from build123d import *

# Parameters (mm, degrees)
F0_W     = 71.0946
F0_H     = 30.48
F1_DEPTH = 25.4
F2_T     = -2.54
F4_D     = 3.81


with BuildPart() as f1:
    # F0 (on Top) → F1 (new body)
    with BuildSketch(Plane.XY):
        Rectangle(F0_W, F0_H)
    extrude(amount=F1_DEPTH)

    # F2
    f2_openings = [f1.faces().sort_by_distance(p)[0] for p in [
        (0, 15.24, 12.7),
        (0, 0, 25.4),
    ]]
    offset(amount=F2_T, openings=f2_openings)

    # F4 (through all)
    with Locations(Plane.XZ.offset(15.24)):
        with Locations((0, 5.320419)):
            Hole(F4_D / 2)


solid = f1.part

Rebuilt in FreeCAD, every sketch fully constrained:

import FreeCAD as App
import Part
import Sketcher
from FreeCAD import Vector
Q = App.Units.Quantity


def faces_at(feature, points):
    """Names of the faces that lie closest to the given points."""
    faces = feature.Shape.Faces
    near = lambda p: min(range(len(faces)), key=lambda i: faces[i].distToShape(Part.Vertex(*p))[0])
    return sorted({f"Face{near(p) + 1}" for p in points})


def add_polygon(sketch, points):
    """Adds a closed chain of lines whose ends are joined by coincident constraints."""
    first, n = sketch.GeometryCount, len(points)
    for a, b in zip(points, points[1:] + points[:1]):
        sketch.addGeometry(Part.LineSegment(App.Vector(*a, 0), App.Vector(*b, 0)), False)
    for i in range(n):
        sketch.addConstraint(Sketcher.Constraint("Coincident", first + i, 2, first + (i + 1) % n, 1))

doc = App.newDocument("Part")
body = doc.addObject("PartDesign::Body", "Body")

# Sketch on XY plane
sketch1 = body.newObject("Sketcher::SketchObject", "Sketch")
sketch1.AttachmentSupport = (doc.getObject("XY_Plane"), [""])
sketch1.MapMode = "FlatFace"
add_polygon(sketch1, [(-36, 15), (-36, -15), (36, -15), (36, 15)])  # lines 0-3
sketch1.addConstraint(Sketcher.Constraint("Vertical", 0))
sketch1.addConstraint(Sketcher.Constraint("Horizontal", 1))
sketch1.addConstraint(Sketcher.Constraint("Vertical", 2))
sketch1.addConstraint(Sketcher.Constraint("Horizontal", 3))
sketch1.addConstraint(Sketcher.Constraint("Symmetric", 0, 2, 2, 2, -1, 1))
sketch1.addConstraint(Sketcher.Constraint("DistanceY", 0, 2, 0, 1, Q("1.2 in")))
sketch1.addConstraint(Sketcher.Constraint("DistanceX", 1, 1, 1, 2, Q("2.799 in")))
pad1 = body.newObject("PartDesign::Pad", "Pad")
pad1.Profile = sketch1
pad1.Length = Q("1 in")
doc.recompute()

thickness = body.newObject("PartDesign::Thickness", "Thickness")
thickness.Base = (pad1, faces_at(pad1, [(0, 15.24, 12.7), (0, 0, 25.4)]))
thickness.Value = Q("0.1 in")
thickness.Reversed = True
thickness.Join = "Arc"

# Sketch on XZ plane
sketch2 = body.newObject("Sketcher::SketchObject", "Sketch001")
sketch2.AttachmentSupport = (doc.getObject("XZ_Plane"), [""])
sketch2.MapMode = "FlatFace"
sketch2.AttachmentOffset = App.Placement(Vector(0, 0, 0.6 * 25.4), App.Rotation())
sketch2.addGeometry(Part.Circle(Vector(0, 5.3, 0), Vector(0, 0, 1), 1.9), False)
sketch2.addConstraint(Sketcher.Constraint("PointOnObject", 0, 3, -2))
sketch2.addConstraint(Sketcher.Constraint("Diameter", 0, Q("0.15 in")))
sketch2.addConstraint(Sketcher.Constraint("DistanceY", -1, 1, 0, 3, 5.320419))
doc.recompute()
hole = body.newObject("PartDesign::Hole", "Hole")
hole.Profile = sketch2
hole.ThreadType = "None"
hole.Diameter = Q("0.15 in")
hole.DepthType = "ThroughAll"

doc.recompute()
